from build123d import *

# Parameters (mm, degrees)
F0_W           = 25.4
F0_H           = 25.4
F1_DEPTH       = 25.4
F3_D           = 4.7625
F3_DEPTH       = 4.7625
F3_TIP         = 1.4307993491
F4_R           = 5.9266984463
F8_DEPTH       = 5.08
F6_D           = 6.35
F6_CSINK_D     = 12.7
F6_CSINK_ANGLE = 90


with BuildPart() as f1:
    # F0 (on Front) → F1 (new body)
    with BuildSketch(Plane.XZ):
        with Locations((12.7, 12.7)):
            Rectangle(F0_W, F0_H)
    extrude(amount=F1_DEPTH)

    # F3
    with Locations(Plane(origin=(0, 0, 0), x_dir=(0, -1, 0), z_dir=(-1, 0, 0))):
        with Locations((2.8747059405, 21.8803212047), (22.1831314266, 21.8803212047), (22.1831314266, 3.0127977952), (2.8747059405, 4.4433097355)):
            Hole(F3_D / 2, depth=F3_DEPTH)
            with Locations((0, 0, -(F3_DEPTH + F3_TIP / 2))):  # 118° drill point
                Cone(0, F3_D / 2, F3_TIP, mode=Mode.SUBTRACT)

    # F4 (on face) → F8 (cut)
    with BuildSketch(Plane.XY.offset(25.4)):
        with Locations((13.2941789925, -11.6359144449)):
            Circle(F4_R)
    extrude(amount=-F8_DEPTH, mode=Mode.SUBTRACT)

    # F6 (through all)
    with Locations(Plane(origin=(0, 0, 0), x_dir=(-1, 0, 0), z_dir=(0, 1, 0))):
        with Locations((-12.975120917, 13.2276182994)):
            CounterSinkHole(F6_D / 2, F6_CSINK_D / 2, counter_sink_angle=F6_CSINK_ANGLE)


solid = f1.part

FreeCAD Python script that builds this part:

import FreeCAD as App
import Part
import Sketcher
Q = App.Units.Quantity

doc = App.newDocument("Part")
body = doc.addObject("PartDesign::Body", "Body")

# Sketch on XZ plane
sketch1 = doc.addObject("Sketcher::SketchObject", "Sketch")
body.addObject(sketch1)
sketch1.AttachmentSupport = (doc.XZ_Plane, [""])
sketch1.MapMode = "FlatFace"
sketch1.addGeometry([
    Part.LineSegment(App.Vector(0, 25.4, 0), App.Vector(0, 0, 0)),
    Part.LineSegment(App.Vector(0, 0, 0), App.Vector(25.4, 0, 0)),
    Part.LineSegment(App.Vector(25.4, 0, 0), App.Vector(25.4, 25.4, 0)),
    Part.LineSegment(App.Vector(25.4, 25.4, 0), App.Vector(0, 25.4, 0)),
], False)
sketch1.addConstraint([
    Sketcher.Constraint("Coincident", 0, 2, 1, 1),
    Sketcher.Constraint("Coincident", 1, 2, 2, 1),
    Sketcher.Constraint("Coincident", 2, 2, 3, 1),
    Sketcher.Constraint("Coincident", 3, 2, 0, 1),
    Sketcher.Constraint("Vertical", 0),
    Sketcher.Constraint("Horizontal", 1),
    Sketcher.Constraint("Vertical", 2),
    Sketcher.Constraint("Horizontal", 3),
    Sketcher.Constraint("Coincident", 0, 2, -1, 1),
    Sketcher.Constraint("Equal", 3, 0),
    Sketcher.Constraint("DistanceX", 1, 1, 1, 2, Q("1 in")),
])
pad1 = doc.addObject("PartDesign::Pad", "Pad")
body.addObject(pad1)
pad1.Profile = sketch1
pad1.Length = Q("1 in")

# Sketch on YZ plane
sketch2 = doc.addObject("Sketcher::SketchObject", "Sketch001")
body.addObject(sketch2)
sketch2.AttachmentSupport = (doc.YZ_Plane, [""])
sketch2.MapMode = "FlatFace"
sketch2.addGeometry([
    Part.Circle(App.Vector(-2.874706, 21.880321, 0), App.Vector(0, 0, 1), 2.38125),
    Part.Circle(App.Vector(-22.183131, 21.880321, 0), App.Vector(0, 0, 1), 2.38125),
    Part.Circle(App.Vector(-22.183131, 3.012798, 0), App.Vector(0, 0, 1), 2.38125),
    Part.Circle(App.Vector(-2.874706, 4.44331, 0), App.Vector(0, 0, 1), 2.38125),
], False)
sketch2.addConstraint([
    Sketcher.Constraint("Equal", 0, 1),
    Sketcher.Constraint("Equal", 1, 2),
    Sketcher.Constraint("Equal", 2, 3),
    Sketcher.Constraint("Horizontal", 0, 3, 1, 3),
    Sketcher.Constraint("Vertical", 1, 3, 2, 3),
    Sketcher.Constraint("Vertical", 0, 3, 3, 3),
    Sketcher.Constraint("Diameter", 0, Q("0.1875 in")),
    Sketcher.Constraint("DistanceY", -1, 1, 0, 3, 21.880321),
    Sketcher.Constraint("DistanceX", 1, 3, -1, 1, 22.183131),
    Sketcher.Constraint("DistanceY", -1, 1, 3, 3, 4.44331),
    Sketcher.Constraint("DistanceY", 2, 3, 3, 3, 1.430512),
    Sketcher.Constraint("DistanceX", 0, 3, -1, 1, 2.874706),
])
doc.recompute()
hole = doc.addObject("PartDesign::Hole", "Hole")
body.addObject(hole)
hole.Profile = sketch2
hole.ThreadType = "None"
hole.Diameter = Q("0.1875 in")
hole.DepthType = "Dimension"
hole.Depth = Q("0.1875 in")
hole.DrillPoint = "Angled"
hole.DrillPointAngle = 118
hole.Reversed = True

# Sketch on XY plane
sketch3 = doc.addObject("Sketcher::SketchObject", "Sketch002")
body.addObject(sketch3)
sketch3.AttachmentSupport = (doc.XY_Plane, [""])
sketch3.MapMode = "FlatFace"
sketch3.AttachmentOffset = App.Placement(App.Vector(0, 0, 1 * 25.4), App.Rotation())
sketch3.addGeometry(Part.Circle(App.Vector(13.294179, -11.635914, 0), App.Vector(0, 0, 1), 5.926698), False)
sketch3.addConstraint([
    Sketcher.Constraint("Diameter", 0, 11.853397),
    Sketcher.Constraint("DistanceX", -1, 1, 0, 3, 13.294179),
    Sketcher.Constraint("DistanceY", 0, 3, -1, 1, 11.635914),
])
pocket1 = doc.addObject("PartDesign::Pocket", "Pocket")
body.addObject(pocket1)
pocket1.Profile = sketch3
pocket1.Length = Q("0.2 in")

# Sketch on XZ plane
sketch4 = doc.addObject("Sketcher::SketchObject", "Sketch003")
body.addObject(sketch4)
sketch4.AttachmentSupport = (doc.XZ_Plane, [""])
sketch4.MapMode = "FlatFace"
sketch4.addGeometry(Part.Circle(App.Vector(12.975121, 13.227618, 0), App.Vector(0, 0, 1), 3.175), False)
sketch4.addConstraint([
    Sketcher.Constraint("Diameter", 0, Q("0.25 in")),
    Sketcher.Constraint("DistanceX", -1, 1, 0, 3, 12.975121),
    Sketcher.Constraint("DistanceY", -1, 1, 0, 3, 13.227618),
])
doc.recompute()
hole2 = doc.addObject("PartDesign::Hole", "Hole001")
body.addObject(hole2)
hole2.Profile = sketch4
hole2.ThreadType = "None"
hole2.Diameter = Q("0.25 in")
hole2.DepthType = "ThroughAll"
hole2.HoleCutType = "Countersink"
hole2.HoleCutDiameter = Q("0.5 in")
hole2.HoleCutCountersinkAngle = 90
hole2.Reversed = True

doc.recompute()
